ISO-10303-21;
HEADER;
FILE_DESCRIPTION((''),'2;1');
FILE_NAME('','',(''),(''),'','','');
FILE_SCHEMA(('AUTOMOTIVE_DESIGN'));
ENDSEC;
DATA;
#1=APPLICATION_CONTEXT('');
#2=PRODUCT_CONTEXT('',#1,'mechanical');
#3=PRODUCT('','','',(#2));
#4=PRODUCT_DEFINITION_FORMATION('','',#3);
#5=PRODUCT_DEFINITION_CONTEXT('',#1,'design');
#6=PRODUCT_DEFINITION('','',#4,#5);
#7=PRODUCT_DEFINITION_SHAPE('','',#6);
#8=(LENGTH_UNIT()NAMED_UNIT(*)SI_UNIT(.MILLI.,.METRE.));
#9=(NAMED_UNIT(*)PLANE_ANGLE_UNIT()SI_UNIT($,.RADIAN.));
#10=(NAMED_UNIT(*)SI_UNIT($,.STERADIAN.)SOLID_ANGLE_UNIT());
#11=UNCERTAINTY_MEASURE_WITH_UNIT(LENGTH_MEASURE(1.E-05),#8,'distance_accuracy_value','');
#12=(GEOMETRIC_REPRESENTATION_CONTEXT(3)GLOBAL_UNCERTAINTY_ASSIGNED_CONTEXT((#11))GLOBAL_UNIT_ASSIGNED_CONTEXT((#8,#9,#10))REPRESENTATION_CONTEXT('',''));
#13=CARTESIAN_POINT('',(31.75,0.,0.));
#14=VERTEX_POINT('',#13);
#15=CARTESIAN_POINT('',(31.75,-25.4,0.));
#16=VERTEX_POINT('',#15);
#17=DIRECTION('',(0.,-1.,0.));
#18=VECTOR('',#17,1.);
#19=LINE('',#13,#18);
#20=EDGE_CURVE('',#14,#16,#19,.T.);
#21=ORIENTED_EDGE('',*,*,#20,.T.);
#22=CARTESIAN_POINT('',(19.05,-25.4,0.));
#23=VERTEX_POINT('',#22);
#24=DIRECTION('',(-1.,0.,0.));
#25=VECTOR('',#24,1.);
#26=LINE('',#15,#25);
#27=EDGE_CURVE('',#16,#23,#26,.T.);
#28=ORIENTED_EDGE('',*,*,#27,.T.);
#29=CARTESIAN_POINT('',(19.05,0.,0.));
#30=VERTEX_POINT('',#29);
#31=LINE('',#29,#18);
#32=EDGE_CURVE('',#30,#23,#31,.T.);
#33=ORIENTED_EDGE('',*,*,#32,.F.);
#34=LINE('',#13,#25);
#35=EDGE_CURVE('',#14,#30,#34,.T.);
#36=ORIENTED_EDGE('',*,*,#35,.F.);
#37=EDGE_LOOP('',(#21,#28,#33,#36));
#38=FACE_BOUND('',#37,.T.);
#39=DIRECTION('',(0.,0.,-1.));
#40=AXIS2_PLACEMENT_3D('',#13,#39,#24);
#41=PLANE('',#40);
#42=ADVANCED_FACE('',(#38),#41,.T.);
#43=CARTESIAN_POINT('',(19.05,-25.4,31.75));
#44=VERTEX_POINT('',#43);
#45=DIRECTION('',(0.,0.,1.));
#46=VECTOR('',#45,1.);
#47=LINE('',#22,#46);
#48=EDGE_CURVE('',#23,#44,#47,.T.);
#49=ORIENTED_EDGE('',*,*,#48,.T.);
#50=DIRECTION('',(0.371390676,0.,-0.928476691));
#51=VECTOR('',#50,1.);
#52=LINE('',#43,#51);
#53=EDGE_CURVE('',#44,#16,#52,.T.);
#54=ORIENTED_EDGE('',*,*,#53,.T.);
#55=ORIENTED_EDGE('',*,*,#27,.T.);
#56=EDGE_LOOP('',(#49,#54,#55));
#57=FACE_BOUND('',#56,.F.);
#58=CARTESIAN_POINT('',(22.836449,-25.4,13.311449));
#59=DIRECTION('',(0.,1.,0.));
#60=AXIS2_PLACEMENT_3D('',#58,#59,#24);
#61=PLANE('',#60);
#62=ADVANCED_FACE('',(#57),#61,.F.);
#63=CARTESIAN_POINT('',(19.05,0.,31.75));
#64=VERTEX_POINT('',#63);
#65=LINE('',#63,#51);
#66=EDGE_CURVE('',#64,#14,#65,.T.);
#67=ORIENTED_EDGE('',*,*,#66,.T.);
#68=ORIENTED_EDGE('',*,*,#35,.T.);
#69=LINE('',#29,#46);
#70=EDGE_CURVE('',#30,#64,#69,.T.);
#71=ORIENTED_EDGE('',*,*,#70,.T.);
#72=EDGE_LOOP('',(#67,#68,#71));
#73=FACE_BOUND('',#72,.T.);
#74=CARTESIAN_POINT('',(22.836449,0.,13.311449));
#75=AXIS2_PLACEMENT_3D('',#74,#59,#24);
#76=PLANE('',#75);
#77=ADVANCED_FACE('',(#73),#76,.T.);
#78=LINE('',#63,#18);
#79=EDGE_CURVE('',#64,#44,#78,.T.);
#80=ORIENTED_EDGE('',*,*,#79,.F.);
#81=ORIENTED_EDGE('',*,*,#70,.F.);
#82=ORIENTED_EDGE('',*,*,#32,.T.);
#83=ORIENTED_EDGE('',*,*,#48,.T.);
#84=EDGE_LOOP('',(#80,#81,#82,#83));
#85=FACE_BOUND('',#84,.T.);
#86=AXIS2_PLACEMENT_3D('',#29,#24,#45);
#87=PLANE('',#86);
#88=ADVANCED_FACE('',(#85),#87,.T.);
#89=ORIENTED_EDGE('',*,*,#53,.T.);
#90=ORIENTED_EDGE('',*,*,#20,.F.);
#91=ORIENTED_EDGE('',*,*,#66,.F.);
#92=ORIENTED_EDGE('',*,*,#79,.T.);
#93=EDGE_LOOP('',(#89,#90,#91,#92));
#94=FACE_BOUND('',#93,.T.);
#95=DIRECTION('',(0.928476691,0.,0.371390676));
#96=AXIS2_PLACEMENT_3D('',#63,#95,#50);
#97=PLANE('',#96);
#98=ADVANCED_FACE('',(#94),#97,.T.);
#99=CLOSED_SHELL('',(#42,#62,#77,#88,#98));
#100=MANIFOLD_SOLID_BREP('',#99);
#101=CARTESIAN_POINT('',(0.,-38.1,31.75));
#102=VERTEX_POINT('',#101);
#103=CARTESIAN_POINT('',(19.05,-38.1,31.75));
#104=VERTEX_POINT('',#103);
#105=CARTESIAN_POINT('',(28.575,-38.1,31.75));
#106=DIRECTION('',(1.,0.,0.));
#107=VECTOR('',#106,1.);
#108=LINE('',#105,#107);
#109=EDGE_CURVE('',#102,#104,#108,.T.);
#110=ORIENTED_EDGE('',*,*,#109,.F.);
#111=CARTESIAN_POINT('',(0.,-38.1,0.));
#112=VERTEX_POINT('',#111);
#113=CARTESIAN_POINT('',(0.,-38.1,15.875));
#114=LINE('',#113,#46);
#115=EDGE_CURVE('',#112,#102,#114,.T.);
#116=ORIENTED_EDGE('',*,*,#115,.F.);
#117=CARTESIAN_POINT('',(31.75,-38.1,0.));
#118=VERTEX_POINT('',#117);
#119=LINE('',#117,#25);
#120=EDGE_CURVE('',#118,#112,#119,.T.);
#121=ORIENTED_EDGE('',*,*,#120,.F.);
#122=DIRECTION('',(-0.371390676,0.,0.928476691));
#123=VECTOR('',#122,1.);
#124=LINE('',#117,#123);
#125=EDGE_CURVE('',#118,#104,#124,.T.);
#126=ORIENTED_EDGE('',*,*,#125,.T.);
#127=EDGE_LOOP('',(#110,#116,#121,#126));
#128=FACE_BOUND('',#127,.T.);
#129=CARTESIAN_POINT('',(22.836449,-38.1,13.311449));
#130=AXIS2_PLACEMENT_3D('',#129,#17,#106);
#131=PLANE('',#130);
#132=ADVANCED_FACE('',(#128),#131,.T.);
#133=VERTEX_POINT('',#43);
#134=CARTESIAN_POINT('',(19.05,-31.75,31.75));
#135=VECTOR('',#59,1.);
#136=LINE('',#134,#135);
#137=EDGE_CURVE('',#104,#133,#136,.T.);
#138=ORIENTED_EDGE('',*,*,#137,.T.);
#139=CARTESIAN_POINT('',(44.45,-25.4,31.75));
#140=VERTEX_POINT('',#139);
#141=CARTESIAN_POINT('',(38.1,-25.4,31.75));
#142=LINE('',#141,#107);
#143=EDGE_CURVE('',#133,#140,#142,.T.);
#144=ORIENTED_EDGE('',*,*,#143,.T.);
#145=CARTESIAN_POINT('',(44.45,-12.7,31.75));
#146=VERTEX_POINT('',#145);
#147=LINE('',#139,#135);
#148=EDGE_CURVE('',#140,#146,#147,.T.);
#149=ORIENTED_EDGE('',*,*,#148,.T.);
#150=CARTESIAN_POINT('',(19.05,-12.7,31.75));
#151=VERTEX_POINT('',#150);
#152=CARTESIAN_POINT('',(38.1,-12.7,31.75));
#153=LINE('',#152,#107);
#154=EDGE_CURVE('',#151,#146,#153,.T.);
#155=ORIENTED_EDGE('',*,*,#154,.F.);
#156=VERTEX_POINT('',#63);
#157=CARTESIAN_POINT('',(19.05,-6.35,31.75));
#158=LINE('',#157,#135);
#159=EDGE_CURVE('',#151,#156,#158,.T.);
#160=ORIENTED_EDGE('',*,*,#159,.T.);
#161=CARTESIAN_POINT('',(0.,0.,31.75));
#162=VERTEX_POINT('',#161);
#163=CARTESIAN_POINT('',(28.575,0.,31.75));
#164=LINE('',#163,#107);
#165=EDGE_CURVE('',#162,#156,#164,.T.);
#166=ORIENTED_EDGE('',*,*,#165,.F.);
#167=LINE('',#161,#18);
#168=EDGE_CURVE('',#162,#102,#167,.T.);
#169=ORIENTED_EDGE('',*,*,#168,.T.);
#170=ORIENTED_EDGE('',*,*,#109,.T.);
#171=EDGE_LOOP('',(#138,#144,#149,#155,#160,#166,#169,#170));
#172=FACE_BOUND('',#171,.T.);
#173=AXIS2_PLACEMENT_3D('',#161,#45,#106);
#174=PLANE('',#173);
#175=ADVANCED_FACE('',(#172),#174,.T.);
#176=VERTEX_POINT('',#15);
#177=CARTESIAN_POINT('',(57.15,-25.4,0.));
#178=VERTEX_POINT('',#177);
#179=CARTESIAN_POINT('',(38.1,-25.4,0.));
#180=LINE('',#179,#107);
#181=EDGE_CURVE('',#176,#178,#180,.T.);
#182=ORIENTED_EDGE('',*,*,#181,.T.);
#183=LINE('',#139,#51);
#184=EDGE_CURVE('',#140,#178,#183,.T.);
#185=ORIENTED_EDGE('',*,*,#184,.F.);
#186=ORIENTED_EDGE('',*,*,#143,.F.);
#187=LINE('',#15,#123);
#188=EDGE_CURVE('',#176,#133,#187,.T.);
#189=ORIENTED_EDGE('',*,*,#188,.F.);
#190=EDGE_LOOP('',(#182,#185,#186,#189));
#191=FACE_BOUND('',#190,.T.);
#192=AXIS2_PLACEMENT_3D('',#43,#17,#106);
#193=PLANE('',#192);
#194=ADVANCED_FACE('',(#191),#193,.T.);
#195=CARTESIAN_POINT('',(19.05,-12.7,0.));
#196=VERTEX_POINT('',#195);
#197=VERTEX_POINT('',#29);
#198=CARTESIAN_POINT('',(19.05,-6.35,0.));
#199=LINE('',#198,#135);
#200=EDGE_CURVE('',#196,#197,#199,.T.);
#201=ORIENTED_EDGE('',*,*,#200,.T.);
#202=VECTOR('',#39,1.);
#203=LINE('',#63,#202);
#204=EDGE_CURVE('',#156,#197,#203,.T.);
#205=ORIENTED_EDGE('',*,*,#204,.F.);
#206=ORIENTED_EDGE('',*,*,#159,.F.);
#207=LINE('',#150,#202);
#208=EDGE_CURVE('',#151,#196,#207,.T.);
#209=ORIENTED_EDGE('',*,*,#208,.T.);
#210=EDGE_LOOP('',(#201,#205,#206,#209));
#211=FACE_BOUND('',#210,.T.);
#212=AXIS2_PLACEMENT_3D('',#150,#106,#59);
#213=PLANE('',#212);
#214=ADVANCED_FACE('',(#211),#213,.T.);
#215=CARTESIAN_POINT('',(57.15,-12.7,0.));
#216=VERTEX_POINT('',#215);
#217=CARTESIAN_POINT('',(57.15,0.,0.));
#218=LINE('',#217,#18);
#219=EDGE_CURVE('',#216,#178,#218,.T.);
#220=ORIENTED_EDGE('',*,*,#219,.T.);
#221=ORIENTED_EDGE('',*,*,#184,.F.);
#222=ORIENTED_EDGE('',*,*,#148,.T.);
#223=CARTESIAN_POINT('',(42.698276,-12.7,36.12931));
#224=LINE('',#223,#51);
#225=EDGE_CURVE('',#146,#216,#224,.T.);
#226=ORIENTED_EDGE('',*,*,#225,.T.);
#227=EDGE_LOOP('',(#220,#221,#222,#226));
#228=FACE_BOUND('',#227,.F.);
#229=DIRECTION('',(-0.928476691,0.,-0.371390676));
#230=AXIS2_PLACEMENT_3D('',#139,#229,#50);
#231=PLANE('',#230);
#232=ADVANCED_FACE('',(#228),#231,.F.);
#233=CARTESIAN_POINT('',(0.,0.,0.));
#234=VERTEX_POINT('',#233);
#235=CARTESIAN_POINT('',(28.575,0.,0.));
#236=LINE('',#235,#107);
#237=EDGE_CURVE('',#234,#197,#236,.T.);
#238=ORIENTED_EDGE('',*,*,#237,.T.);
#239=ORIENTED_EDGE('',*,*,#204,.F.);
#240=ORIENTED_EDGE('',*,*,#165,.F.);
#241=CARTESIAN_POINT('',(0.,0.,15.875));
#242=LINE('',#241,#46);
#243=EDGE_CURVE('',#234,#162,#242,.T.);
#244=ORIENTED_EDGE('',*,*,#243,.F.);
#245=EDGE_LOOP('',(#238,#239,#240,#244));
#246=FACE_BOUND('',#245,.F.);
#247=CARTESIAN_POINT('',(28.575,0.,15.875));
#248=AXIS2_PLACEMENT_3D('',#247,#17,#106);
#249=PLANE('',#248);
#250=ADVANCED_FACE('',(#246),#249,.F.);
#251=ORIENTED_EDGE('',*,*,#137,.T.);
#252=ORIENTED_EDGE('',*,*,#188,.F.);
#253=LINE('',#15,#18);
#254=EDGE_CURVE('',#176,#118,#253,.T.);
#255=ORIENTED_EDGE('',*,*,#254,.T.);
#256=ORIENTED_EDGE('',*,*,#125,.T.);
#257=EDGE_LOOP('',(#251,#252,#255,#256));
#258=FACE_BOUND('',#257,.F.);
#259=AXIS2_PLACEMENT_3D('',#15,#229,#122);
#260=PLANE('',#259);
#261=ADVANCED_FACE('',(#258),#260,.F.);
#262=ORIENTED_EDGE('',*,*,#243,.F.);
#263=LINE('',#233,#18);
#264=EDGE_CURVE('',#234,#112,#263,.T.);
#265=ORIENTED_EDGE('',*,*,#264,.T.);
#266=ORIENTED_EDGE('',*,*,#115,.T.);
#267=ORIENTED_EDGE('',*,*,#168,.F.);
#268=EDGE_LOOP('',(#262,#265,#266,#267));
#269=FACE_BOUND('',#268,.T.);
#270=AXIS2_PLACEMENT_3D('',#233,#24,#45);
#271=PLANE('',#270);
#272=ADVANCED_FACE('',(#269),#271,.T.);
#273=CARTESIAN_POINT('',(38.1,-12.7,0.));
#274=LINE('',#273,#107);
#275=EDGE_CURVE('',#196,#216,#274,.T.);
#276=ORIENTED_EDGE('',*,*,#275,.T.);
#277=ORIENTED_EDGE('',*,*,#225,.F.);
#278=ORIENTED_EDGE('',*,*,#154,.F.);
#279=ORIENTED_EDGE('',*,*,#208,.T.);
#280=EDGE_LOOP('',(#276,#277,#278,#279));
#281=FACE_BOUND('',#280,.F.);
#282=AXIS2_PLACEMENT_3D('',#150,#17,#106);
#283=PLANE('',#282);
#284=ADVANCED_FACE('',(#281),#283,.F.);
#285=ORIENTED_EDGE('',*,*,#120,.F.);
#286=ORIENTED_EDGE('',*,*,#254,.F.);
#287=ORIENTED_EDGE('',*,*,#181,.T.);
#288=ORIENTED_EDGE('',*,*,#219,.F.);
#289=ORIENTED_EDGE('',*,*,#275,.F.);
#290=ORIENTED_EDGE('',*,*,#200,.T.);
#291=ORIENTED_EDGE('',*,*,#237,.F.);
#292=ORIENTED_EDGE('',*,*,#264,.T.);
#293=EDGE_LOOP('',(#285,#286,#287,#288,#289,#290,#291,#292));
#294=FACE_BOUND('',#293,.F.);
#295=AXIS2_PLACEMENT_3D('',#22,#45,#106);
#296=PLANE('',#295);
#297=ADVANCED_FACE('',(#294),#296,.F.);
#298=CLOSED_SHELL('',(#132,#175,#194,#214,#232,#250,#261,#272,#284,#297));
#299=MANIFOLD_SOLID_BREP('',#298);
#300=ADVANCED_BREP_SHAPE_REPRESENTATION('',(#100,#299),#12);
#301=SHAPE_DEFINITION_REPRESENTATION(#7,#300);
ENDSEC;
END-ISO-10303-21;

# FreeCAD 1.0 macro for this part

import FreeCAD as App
import Part
import Sketcher
from FreeCAD import Vector
Q = App.Units.Quantity

doc = App.newDocument("Part")
body = doc.addObject("PartDesign::Body", "Body")

# Sketch on XZ plane
sketch1 = body.newObject("Sketcher::SketchObject", "Sketch")
sketch1.AttachmentSupport = (doc.getObject("XZ_Plane"), [""])
sketch1.MapMode = "FlatFace"
sketch1.addGeometry([
    Part.LineSegment(Vector(0, 32, 0), Vector(0, 0, 0)),
    Part.LineSegment(Vector(0, 0, 0), Vector(57, 0, 0)),
    Part.LineSegment(Vector(57, 0, 0), Vector(57, 32, 0)),
    Part.LineSegment(Vector(57, 32, 0), Vector(0, 32, 0)),
], False)
sketch1.addConstraint([
    Sketcher.Constraint("Coincident", 0, 2, 1, 1),
    Sketcher.Constraint("Coincident", 1, 2, 2, 1),
    Sketcher.Constraint("Coincident", 2, 2, 3, 1),
    Sketcher.Constraint("Coincident", 3, 2, 0, 1),
    Sketcher.Constraint("Vertical", 0),
    Sketcher.Constraint("Horizontal", 1),
    Sketcher.Constraint("Vertical", 2),
    Sketcher.Constraint("Horizontal", 3),
    Sketcher.Constraint("Coincident", 0, 2, -1, 1),
    Sketcher.Constraint("DistanceX", 1, 1, 1, 2, Q("2.25 in")),
    Sketcher.Constraint("DistanceY", 0, 2, 0, 1, Q("1.25 in")),
])
pad1 = body.newObject("PartDesign::Pad", "Pad")
pad1.Profile = sketch1
pad1.Length = Q("1.5 in")

# Sketch on XY plane
sketch2 = body.newObject("Sketcher::SketchObject", "Sketch001")
sketch2.AttachmentSupport = (doc.getObject("XY_Plane"), [""])
sketch2.MapMode = "FlatFace"
sketch2.AttachmentOffset = App.Placement(Vector(0, 0, 1.25 * 25.4), App.Rotation())
sketch2.addGeometry([
    Part.LineSegment(Vector(19, -25, 0), Vector(19, -38, 0)),  # 0
    Part.LineSegment(Vector(19, -38, 0), Vector(57, -38, 0)),  # 1
    Part.LineSegment(Vector(57, -38, 0), Vector(57, -25, 0)),  # 2
    Part.LineSegment(Vector(57, -25, 0), Vector(19, -25, 0)),  # 3
    Part.LineSegment(Vector(19, 0, 0), Vector(19, -13, 0)),  # 4
    Part.LineSegment(Vector(19, -13, 0), Vector(57, -13, 0)),  # 5
    Part.LineSegment(Vector(57, -13, 0), Vector(57, 0, 0)),  # 6
    Part.LineSegment(Vector(57, 0, 0), Vector(19, 0, 0)),  # 7
], False)
sketch2.addConstraint([
    Sketcher.Constraint("Coincident", 0, 2, 1, 1),
    Sketcher.Constraint("Coincident", 1, 2, 2, 1),
    Sketcher.Constraint("Coincident", 2, 2, 3, 1),
    Sketcher.Constraint("Coincident", 3, 2, 0, 1),
    Sketcher.Constraint("Coincident", 4, 2, 5, 1),
    Sketcher.Constraint("Coincident", 5, 2, 6, 1),
    Sketcher.Constraint("Coincident", 6, 2, 7, 1),
    Sketcher.Constraint("Coincident", 7, 2, 4, 1),
    Sketcher.Constraint("Vertical", 0),
    Sketcher.Constraint("Horizontal", 1),
    Sketcher.Constraint("Vertical", 2),
    Sketcher.Constraint("Horizontal", 3),
    Sketcher.Constraint("Vertical", 4),
    Sketcher.Constraint("Horizontal", 5),
    Sketcher.Constraint("Vertical", 6),
    Sketcher.Constraint("Horizontal", 7),
    Sketcher.Constraint("PointOnObject", 6, 2, -1),
    Sketcher.Constraint("Vertical", 3, 2, 4, 2),
    Sketcher.Constraint("Vertical", 2, 2, 5, 2),
    Sketcher.Constraint("Equal", 2, 4),
    Sketcher.Constraint("DistanceX", 1, 1, 1, 2, Q("1.5 in")),
    Sketcher.Constraint("DistanceY", 0, 2, 0, 1, Q("0.5 in")),
    Sketcher.Constraint("DistanceY", 2, 2, -1, 1, Q("1 in")),
    Sketcher.Constraint("DistanceX", -1, 1, 0, 2, Q("0.75 in")),
])
pocket1 = body.newObject("PartDesign::Pocket", "Pocket")
pocket1.Profile = sketch2
pocket1.Length = Q("1.25 in")

# Sketch on XZ plane
sketch3 = body.newObject("Sketcher::SketchObject", "Sketch002")
sketch3.AttachmentSupport = (doc.getObject("XZ_Plane"), [""])
sketch3.MapMode = "FlatFace"
sketch3.AttachmentOffset = App.Placement(Vector(0, 0, 1 * 25.4), App.Rotation())
sketch3.addGeometry([
    Part.LineSegment(Vector(19, 32, 0), Vector(19, 0, 0)),
    Part.LineSegment(Vector(19, 0, 0), Vector(32, 0, 0)),
    Part.LineSegment(Vector(32, 0, 0), Vector(19, 32, 0)),
], False)
sketch3.addConstraint([
    Sketcher.Constraint("Coincident", 0, 2, 1, 1),
    Sketcher.Constraint("Coincident", 1, 2, 2, 1),
    Sketcher.Constraint("Coincident", 2, 2, 0, 1),
    Sketcher.Constraint("Vertical", 0),
    Sketcher.Constraint("Horizontal", 1),
    Sketcher.Constraint("PointOnObject", 0, 2, -1),
    Sketcher.Constraint("DistanceX", 1, 1, 1, 2, Q("0.5 in")),
    Sketcher.Constraint("DistanceY", 0, 2, 0, 1, Q("1.25 in")),
    Sketcher.Constraint("DistanceX", -1, 1, 0, 2, Q("0.75 in")),
])
pad2 = body.newObject("PartDesign::Pad", "Pad001")
pad2.Profile = sketch3
pad2.Length = Q("0.5 in")

# Sketch on XZ plane
sketch4 = body.newObject("Sketcher::SketchObject", "Sketch003")
sketch4.AttachmentSupport = (doc.getObject("XZ_Plane"), [""])
sketch4.MapMode = "FlatFace"
sketch4.AttachmentOffset = App.Placement(Vector(0, 0, 1 * 25.4), App.Rotation())
sketch4.addGeometry([
    Part.LineSegment(Vector(57, 32, 0), Vector(44, 32, 0)),
    Part.LineSegment(Vector(44, 32, 0), Vector(57, 0, 0)),
    Part.LineSegment(Vector(57, 0, 0), Vector(57, 32, 0)),
], False)
sketch4.addConstraint([
    Sketcher.Constraint("Coincident", 0, 2, 1, 1),
    Sketcher.Constraint("Coincident", 1, 2, 2, 1),
    Sketcher.Constraint("Coincident", 2, 2, 0, 1),
    Sketcher.Constraint("Horizontal", 0),
    Sketcher.Constraint("Vertical", 2),
    Sketcher.Constraint("PointOnObject", 1, 2, -1),
    Sketcher.Constraint("DistanceX", 0, 2, 0, 1, Q("0.5 in")),
    Sketcher.Constraint("DistanceY", 2, 1, 2, 2, Q("1.25 in")),
    Sketcher.Constraint("DistanceX", -1, 1, 0, 2, Q("1.75 in")),
])
pocket2 = body.newObject("PartDesign::Pocket", "Pocket001")
pocket2.Profile = sketch4
pocket2.Length = Q("1 in")
body2 = doc.addObject("PartDesign::Body", "Body001")

# Sketch on XZ plane
sketch5 = body2.newObject("Sketcher::SketchObject", "Sketch004")
sketch5.AttachmentSupport = (doc.getObject("XZ_Plane001"), [""])
sketch5.MapMode = "FlatFace"
sketch5.addGeometry([
    Part.LineSegment(Vector(32, 0, 0), Vector(19, 0, 0)),
    Part.LineSegment(Vector(19, 0, 0), Vector(19, 32, 0)),
    Part.LineSegment(Vector(19, 32, 0), Vector(32, 0, 0)),
], False)
sketch5.addConstraint([
    Sketcher.Constraint("Coincident", 0, 2, 1, 1),
    Sketcher.Constraint("Coincident", 1, 2, 2, 1),
    Sketcher.Constraint("Coincident", 2, 2, 0, 1),
    Sketcher.Constraint("Horizontal", 0),
    Sketcher.Constraint("Vertical", 1),
    Sketcher.Constraint("PointOnObject", 0, 2, -1),
    Sketcher.Constraint("DistanceX", 0, 2, 0, 1, Q("0.5 in")),
    Sketcher.Constraint("DistanceY", 1, 1, 1, 2, Q("1.25 in")),
    Sketcher.Constraint("DistanceX", -1, 1, 0, 2, Q("0.75 in")),
])
pad3 = body2.newObject("PartDesign::Pad", "Pad002")
pad3.Profile = sketch5
pad3.Length = Q("1 in")

doc.recompute()
